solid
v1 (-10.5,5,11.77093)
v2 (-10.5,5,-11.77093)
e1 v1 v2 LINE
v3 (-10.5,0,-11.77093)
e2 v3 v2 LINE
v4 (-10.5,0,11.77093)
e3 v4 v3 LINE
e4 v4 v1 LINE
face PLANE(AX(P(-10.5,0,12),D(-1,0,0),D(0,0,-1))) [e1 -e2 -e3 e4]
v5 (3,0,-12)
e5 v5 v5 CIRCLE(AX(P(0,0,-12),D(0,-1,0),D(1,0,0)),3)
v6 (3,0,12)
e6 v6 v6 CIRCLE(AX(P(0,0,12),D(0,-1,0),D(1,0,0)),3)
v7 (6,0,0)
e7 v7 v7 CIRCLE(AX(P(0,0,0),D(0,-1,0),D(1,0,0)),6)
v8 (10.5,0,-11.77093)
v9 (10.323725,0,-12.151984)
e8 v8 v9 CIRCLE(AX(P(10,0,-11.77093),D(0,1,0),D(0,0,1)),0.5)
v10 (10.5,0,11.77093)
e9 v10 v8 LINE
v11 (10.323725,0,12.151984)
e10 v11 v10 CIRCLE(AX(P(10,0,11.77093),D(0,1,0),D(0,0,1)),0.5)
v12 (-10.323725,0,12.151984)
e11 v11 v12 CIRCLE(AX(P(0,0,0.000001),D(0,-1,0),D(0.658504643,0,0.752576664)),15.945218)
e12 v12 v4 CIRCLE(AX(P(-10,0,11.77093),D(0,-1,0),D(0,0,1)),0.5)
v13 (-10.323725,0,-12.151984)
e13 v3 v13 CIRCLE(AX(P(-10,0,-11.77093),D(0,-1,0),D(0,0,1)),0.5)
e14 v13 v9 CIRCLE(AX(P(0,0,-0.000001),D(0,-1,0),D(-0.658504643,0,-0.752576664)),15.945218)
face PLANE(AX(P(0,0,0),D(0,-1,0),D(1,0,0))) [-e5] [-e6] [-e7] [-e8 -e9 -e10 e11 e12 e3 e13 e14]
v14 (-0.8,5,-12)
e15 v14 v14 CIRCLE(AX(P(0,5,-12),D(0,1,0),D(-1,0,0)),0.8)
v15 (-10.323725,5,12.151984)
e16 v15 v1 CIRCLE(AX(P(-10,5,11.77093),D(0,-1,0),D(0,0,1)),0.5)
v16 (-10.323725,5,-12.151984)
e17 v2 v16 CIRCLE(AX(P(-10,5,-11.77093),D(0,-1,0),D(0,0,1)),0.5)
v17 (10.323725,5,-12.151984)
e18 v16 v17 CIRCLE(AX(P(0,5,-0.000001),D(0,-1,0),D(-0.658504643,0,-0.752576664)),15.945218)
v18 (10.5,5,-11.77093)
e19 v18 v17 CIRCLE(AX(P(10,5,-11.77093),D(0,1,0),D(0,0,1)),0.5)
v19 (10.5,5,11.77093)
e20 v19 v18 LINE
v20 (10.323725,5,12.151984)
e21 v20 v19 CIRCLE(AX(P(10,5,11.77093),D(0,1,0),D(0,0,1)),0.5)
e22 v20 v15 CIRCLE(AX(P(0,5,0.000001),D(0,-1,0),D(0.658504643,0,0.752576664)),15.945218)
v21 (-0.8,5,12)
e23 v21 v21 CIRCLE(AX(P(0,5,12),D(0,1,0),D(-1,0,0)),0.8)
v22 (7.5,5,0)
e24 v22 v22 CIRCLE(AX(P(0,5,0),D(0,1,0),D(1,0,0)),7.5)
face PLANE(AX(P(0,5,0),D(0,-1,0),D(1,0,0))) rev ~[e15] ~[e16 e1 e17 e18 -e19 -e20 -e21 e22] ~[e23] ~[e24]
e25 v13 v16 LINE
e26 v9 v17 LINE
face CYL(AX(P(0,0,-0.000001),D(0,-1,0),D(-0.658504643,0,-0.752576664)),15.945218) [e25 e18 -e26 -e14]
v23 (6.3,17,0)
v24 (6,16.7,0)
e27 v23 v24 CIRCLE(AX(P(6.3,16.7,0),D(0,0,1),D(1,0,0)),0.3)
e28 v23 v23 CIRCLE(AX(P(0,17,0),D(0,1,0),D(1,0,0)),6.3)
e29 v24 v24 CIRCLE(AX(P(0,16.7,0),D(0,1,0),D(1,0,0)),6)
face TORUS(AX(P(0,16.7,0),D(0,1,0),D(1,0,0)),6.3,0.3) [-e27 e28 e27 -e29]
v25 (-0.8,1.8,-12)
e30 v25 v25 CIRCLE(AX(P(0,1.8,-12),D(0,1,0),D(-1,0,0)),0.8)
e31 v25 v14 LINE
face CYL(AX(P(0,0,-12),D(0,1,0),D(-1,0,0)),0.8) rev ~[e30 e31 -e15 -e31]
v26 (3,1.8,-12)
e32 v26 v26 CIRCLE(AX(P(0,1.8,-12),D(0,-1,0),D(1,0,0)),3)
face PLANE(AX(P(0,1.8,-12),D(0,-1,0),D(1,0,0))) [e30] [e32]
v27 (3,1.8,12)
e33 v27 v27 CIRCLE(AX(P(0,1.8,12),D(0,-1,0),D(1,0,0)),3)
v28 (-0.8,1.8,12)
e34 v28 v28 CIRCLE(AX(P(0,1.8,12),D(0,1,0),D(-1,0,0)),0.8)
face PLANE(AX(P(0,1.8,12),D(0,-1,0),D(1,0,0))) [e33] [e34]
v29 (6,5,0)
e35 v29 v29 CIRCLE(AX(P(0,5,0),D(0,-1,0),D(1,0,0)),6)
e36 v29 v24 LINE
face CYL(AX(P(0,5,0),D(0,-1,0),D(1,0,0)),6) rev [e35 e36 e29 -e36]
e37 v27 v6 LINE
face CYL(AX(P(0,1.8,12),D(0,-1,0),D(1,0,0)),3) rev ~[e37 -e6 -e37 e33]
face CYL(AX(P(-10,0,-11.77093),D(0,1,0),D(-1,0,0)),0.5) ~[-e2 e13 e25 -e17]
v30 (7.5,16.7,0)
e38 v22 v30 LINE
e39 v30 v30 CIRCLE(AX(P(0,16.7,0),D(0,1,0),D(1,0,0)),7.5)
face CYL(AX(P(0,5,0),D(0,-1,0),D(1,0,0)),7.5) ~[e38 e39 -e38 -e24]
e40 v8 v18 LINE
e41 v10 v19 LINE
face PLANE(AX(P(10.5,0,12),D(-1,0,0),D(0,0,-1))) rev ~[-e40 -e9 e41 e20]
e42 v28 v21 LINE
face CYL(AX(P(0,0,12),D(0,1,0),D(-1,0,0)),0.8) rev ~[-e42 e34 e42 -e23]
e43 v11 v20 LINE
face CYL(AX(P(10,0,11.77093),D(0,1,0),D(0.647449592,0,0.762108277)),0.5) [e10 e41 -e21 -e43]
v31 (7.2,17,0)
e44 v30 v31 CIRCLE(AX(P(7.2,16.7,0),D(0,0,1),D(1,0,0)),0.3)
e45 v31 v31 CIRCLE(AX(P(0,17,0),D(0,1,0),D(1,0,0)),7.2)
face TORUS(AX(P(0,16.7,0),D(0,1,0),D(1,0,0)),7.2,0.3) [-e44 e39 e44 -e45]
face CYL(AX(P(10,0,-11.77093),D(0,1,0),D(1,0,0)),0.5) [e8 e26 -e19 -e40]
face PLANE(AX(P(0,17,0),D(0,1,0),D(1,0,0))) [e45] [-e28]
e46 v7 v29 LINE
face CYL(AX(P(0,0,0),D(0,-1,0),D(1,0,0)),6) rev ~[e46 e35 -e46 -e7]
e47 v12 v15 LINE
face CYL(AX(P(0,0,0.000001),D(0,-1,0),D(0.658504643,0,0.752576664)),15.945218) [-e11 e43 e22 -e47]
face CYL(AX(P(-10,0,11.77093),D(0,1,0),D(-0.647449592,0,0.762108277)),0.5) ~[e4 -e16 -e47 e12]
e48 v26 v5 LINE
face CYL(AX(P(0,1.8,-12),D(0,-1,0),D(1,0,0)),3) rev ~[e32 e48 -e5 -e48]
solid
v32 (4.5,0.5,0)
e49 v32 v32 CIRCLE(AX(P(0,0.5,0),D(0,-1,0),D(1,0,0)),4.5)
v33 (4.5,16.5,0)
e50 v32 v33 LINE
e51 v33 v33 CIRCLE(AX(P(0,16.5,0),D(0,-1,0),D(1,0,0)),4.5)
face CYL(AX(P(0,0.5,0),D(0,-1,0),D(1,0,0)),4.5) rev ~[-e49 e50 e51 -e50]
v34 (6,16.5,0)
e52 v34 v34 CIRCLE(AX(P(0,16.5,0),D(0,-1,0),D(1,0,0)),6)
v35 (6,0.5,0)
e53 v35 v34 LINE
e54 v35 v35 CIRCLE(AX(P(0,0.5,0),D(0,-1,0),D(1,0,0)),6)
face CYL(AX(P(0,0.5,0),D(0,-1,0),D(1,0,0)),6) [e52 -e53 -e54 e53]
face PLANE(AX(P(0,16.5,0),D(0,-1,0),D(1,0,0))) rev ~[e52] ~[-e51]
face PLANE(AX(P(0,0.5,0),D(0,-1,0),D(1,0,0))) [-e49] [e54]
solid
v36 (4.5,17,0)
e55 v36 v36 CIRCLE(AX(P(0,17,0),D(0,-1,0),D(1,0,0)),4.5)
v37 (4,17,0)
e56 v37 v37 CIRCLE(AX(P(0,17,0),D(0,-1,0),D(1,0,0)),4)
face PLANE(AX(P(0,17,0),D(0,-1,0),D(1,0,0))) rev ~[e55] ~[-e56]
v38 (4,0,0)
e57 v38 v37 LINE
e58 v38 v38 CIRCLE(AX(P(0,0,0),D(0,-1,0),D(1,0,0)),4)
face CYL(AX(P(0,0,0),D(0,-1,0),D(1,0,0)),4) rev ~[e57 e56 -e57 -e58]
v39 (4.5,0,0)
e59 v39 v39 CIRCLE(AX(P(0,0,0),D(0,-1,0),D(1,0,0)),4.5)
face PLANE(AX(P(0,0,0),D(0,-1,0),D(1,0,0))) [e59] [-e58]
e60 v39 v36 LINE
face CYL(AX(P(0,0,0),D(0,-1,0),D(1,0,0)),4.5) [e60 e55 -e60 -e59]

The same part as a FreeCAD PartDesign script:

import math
import FreeCAD as App
import Part
import Sketcher
Q = App.Units.Quantity


def edges_at(feature, points):
    """Names of the edges that pass closest to the given points."""
    edges = feature.Shape.Edges
    near = lambda p: min(range(len(edges)), key=lambda i: edges[i].distToShape(Part.Vertex(*p))[0])
    return sorted({f"Edge{near(p) + 1}" for p in points})

doc = App.newDocument("Part")
params = doc.addObject("Spreadsheet::Sheet", "Params")
for row, (alias, value) in enumerate([
    ("sketch1_diameter", "12 mm"),
    ("sketch1_height", "24 mm"),
    ("pad1_length", "5 mm"),
    ("sketch2_diameter", "1.6 mm"),
    ("hole_diameter", "1.6 mm"),
    ("hole_cbore_diameter", "6 mm"),
    ("hole_cbore_depth", "1.8 mm"),
    ("sketch3_diameter", "15 mm"),
    ("sketch3_diameter2", "12 mm"),
    ("pad2_length", "12 mm"),
    ("fillet_radius", "0.5 mm"),
    ("fillet2_radius", "0.3 mm"),
    ("sketch4_diameter", "12 mm"),
    ("sketch4_diameter2", "9 mm"),
    ("pad3_length", "16 mm"),
    ("sketch5_diameter", "9 mm"),
    ("sketch5_diameter2", "8 mm"),
    ("pad4_length", "17 mm"),
], start=1):
    params.set(f"A{row}", alias)
    params.set(f"B{row}", "=" + value)
    params.setAlias(f"B{row}", alias)

body = doc.addObject("PartDesign::Body", "Body")

# Sketch on XZ plane
sketch1 = doc.addObject("Sketcher::SketchObject", "Sketch")
body.addObject(sketch1)
sketch1.AttachmentSupport = (doc.XZ_Plane, [""])
sketch1.MapMode = "FlatFace"
sketch1.addGeometry(Part.ArcOfCircle(Part.Circle(App.Vector(0, 0, 0), App.Vector(0, 0, 1), 16), math.radians(49), math.radians(131)), False)
sketch1.addGeometry(Part.LineSegment(App.Vector(-10, 12, 0), App.Vector(-10, -12, 0)), False)
sketch1.addGeometry(Part.ArcOfCircle(Part.Circle(App.Vector(0, 0, 0), App.Vector(0, 0, 1), 16), math.radians(-131), math.radians(-49)), False)
sketch1.addGeometry(Part.LineSegment(App.Vector(10, -12, 0), App.Vector(10, 12, 0)), False)
sketch1.addGeometry(Part.Circle(App.Vector(0, 0, 0), App.Vector(0, 0, 1), 6), False)
sketch1.addConstraint(Sketcher.Constraint("Coincident", 0, 2, 1, 1))
sketch1.addConstraint(Sketcher.Constraint("Coincident", 1, 2, 2, 1))
sketch1.addConstraint(Sketcher.Constraint("Coincident", 2, 2, 3, 1))
sketch1.addConstraint(Sketcher.Constraint("Coincident", 3, 2, 0, 1))
sketch1.addConstraint(Sketcher.Constraint("Vertical", 1))
sketch1.addConstraint(Sketcher.Constraint("Vertical", 3))
sketch1.addConstraint(Sketcher.Constraint("Coincident", 0, 3, -1, 1))
sketch1.addConstraint(Sketcher.Constraint("Coincident", 2, 3, -1, 1))
sketch1.addConstraint(Sketcher.Constraint("Coincident", 4, 3, -1, 1))
sketch1.addConstraint(Sketcher.Constraint("Equal", 0, 2))
sketch1.addConstraint(Sketcher.Constraint("Horizontal", 1, 2, 2, 2))
sketch1.addConstraint(Sketcher.Constraint("Diameter", 4, Q("12 mm")))
sketch1.addConstraint(Sketcher.Constraint("DistanceY", 1, 2, 1, 1, Q("24 mm")))
sketch1.addConstraint(Sketcher.Constraint("DistanceX", 1, 2, 2, 2, Q("21 mm")))
sketch1.setExpression("Constraints[11]", "Params.sketch1_diameter")
sketch1.setExpression("Constraints[12]", "Params.sketch1_height")
pad1 = doc.addObject("PartDesign::Pad", "Pad")
body.addObject(pad1)
pad1.Profile = sketch1
pad1.setExpression("Length", "Params.pad1_length")
pad1.Reversed = True

# Sketch on XZ plane
sketch2 = doc.addObject("Sketcher::SketchObject", "Sketch001")
body.addObject(sketch2)
sketch2.AttachmentSupport = (doc.XZ_Plane, [""])
sketch2.MapMode = "FlatFace"
sketch2.addGeometry(Part.Circle(App.Vector(0, 12, 0), App.Vector(0, 0, 1), 0.8), False)
sketch2.addGeometry(Part.Circle(App.Vector(0, -12, 0), App.Vector(0, 0, 1), 0.8), False)
sketch2.addConstraint(Sketcher.Constraint("Equal", 0, 1))
sketch2.addConstraint(Sketcher.Constraint("Symmetric", 0, 3, 1, 3, -1, 1))
sketch2.addConstraint(Sketcher.Constraint("PointOnObject", 0, 3, -2))
sketch2.addConstraint(Sketcher.Constraint("Diameter", 0, Q("1.6 mm")))
sketch2.addConstraint(Sketcher.Constraint("DistanceY", -1, 1, 0, 3, Q("12 mm")))
sketch2.setExpression("Constraints[3]", "Params.sketch2_diameter")
doc.recompute()
hole = doc.addObject("PartDesign::Hole", "Hole")
body.addObject(hole)
hole.Profile = sketch2
hole.ThreadType = "None"
hole.setExpression("Diameter", "Params.hole_diameter")
hole.DepthType = "ThroughAll"
hole.HoleCutType = "Counterbore"
hole.setExpression("HoleCutDiameter", "Params.hole_cbore_diameter")
hole.setExpression("HoleCutDepth", "Params.hole_cbore_depth")

# Sketch on XZ plane
sketch3 = doc.addObject("Sketcher::SketchObject", "Sketch002")
body.addObject(sketch3)
sketch3.AttachmentSupport = (doc.XZ_Plane, [""])
sketch3.MapMode = "FlatFace"
sketch3.AttachmentOffset = App.Placement(App.Vector(0, 0, -5), App.Rotation())
sketch3.addGeometry(Part.Circle(App.Vector(0, 0, 0), App.Vector(0, 0, 1), 8), False)
sketch3.addGeometry(Part.Circle(App.Vector(0, 0, 0), App.Vector(0, 0, 1), 6), False)
sketch3.addConstraint(Sketcher.Constraint("Coincident", 0, 3, -1, 1))
sketch3.addConstraint(Sketcher.Constraint("Coincident", 1, 3, -1, 1))
sketch3.addConstraint(Sketcher.Constraint("Diameter", 0, Q("15 mm")))
sketch3.addConstraint(Sketcher.Constraint("Diameter", 1, Q("12 mm")))
sketch3.setExpression("Constraints[2]", "Params.sketch3_diameter")
sketch3.setExpression("Constraints[3]", "Params.sketch3_diameter2")
pad2 = doc.addObject("PartDesign::Pad", "Pad001")
body.addObject(pad2)
pad2.Profile = sketch3
pad2.setExpression("Length", "Params.pad2_length")
pad2.Reversed = True
doc.recompute()

fillet = doc.addObject("PartDesign::Fillet", "Fillet")
body.addObject(fillet)
fillet.Base = (pad2, edges_at(pad2, [
    (10.5, 2.5, -12),
    (10.5, 2.5, 12),
    (-10.5, 2.5, 12),
    (-10.5, 2.5, -12),
]))
fillet.setExpression("Radius", "Params.fillet_radius")
doc.recompute()

fillet2 = doc.addObject("PartDesign::Fillet", "Fillet001")
body.addObject(fillet2)
fillet2.Base = (fillet, edges_at(fillet, [(-7.5, 17, 0), (-6, 17, 0)]))
fillet2.setExpression("Radius", "Params.fillet2_radius")
body2 = doc.addObject("PartDesign::Body", "Body001")

# Sketch on XZ plane
sketch4 = doc.addObject("Sketcher::SketchObject", "Sketch003")
body2.addObject(sketch4)
sketch4.AttachmentSupport = (doc.getObject("XZ_Plane001"), [""])
sketch4.MapMode = "FlatFace"
sketch4.addGeometry(Part.Circle(App.Vector(0, 0, 0), App.Vector(0, 0, 1), 6), False)
sketch4.addGeometry(Part.Circle(App.Vector(0, 0, 0), App.Vector(0, 0, 1), 4.5), False)
sketch4.addConstraint(Sketcher.Constraint("Coincident", 0, 3, -1, 1))
sketch4.addConstraint(Sketcher.Constraint("Coincident", 1, 3, -1, 1))
sketch4.addConstraint(Sketcher.Constraint("Diameter", 0, Q("12 mm")))
sketch4.addConstraint(Sketcher.Constraint("Diameter", 1, Q("9 mm")))
sketch4.setExpression("Constraints[2]", "Params.sketch4_diameter")
sketch4.setExpression("Constraints[3]", "Params.sketch4_diameter2")
pad3 = doc.addObject("PartDesign::Pad", "Pad002")
body2.addObject(pad3)
pad3.Profile = sketch4
pad3.setExpression("Length", "Params.pad3_length")
pad3.Reversed = True
body3 = doc.addObject("PartDesign::Body", "Body002")
doc.recompute()

body2.Placement = App.Placement(App.Vector(0, 0.5, 0), App.Rotation(App.Vector(0, 0, 1), 0))
boolean = doc.addObject("PartDesign::Boolean", "Boolean")
body3.addObject(boolean)
boolean.Type = "Fuse"
boolean.addObjects([body2])
body4 = doc.addObject("PartDesign::Body", "Body003")

# Sketch on XZ plane
sketch5 = doc.addObject("Sketcher::SketchObject", "Sketch004")
body4.addObject(sketch5)
sketch5.AttachmentSupport = (doc.getObject("XZ_Plane003"), [""])
sketch5.MapMode = "FlatFace"
sketch5.addGeometry(Part.Circle(App.Vector(0, 0, 0), App.Vector(0, 0, 1), 4.5), False)
sketch5.addGeometry(Part.Circle(App.Vector(0, 0, 0), App.Vector(0, 0, 1), 4), False)
sketch5.addConstraint(Sketcher.Constraint("Coincident", 0, 3, -1, 1))
sketch5.addConstraint(Sketcher.Constraint("Coincident", 1, 3, -1, 1))
sketch5.addConstraint(Sketcher.Constraint("Diameter", 0, Q("9 mm")))
sketch5.addConstraint(Sketcher.Constraint("Diameter", 1, Q("8 mm")))
sketch5.setExpression("Constraints[2]", "Params.sketch5_diameter")
sketch5.setExpression("Constraints[3]", "Params.sketch5_diameter2")
pad4 = doc.addObject("PartDesign::Pad", "Pad003")
body4.addObject(pad4)
pad4.Profile = sketch5
pad4.setExpression("Length", "Params.pad4_length")
pad4.Reversed = True

doc.recompute()
